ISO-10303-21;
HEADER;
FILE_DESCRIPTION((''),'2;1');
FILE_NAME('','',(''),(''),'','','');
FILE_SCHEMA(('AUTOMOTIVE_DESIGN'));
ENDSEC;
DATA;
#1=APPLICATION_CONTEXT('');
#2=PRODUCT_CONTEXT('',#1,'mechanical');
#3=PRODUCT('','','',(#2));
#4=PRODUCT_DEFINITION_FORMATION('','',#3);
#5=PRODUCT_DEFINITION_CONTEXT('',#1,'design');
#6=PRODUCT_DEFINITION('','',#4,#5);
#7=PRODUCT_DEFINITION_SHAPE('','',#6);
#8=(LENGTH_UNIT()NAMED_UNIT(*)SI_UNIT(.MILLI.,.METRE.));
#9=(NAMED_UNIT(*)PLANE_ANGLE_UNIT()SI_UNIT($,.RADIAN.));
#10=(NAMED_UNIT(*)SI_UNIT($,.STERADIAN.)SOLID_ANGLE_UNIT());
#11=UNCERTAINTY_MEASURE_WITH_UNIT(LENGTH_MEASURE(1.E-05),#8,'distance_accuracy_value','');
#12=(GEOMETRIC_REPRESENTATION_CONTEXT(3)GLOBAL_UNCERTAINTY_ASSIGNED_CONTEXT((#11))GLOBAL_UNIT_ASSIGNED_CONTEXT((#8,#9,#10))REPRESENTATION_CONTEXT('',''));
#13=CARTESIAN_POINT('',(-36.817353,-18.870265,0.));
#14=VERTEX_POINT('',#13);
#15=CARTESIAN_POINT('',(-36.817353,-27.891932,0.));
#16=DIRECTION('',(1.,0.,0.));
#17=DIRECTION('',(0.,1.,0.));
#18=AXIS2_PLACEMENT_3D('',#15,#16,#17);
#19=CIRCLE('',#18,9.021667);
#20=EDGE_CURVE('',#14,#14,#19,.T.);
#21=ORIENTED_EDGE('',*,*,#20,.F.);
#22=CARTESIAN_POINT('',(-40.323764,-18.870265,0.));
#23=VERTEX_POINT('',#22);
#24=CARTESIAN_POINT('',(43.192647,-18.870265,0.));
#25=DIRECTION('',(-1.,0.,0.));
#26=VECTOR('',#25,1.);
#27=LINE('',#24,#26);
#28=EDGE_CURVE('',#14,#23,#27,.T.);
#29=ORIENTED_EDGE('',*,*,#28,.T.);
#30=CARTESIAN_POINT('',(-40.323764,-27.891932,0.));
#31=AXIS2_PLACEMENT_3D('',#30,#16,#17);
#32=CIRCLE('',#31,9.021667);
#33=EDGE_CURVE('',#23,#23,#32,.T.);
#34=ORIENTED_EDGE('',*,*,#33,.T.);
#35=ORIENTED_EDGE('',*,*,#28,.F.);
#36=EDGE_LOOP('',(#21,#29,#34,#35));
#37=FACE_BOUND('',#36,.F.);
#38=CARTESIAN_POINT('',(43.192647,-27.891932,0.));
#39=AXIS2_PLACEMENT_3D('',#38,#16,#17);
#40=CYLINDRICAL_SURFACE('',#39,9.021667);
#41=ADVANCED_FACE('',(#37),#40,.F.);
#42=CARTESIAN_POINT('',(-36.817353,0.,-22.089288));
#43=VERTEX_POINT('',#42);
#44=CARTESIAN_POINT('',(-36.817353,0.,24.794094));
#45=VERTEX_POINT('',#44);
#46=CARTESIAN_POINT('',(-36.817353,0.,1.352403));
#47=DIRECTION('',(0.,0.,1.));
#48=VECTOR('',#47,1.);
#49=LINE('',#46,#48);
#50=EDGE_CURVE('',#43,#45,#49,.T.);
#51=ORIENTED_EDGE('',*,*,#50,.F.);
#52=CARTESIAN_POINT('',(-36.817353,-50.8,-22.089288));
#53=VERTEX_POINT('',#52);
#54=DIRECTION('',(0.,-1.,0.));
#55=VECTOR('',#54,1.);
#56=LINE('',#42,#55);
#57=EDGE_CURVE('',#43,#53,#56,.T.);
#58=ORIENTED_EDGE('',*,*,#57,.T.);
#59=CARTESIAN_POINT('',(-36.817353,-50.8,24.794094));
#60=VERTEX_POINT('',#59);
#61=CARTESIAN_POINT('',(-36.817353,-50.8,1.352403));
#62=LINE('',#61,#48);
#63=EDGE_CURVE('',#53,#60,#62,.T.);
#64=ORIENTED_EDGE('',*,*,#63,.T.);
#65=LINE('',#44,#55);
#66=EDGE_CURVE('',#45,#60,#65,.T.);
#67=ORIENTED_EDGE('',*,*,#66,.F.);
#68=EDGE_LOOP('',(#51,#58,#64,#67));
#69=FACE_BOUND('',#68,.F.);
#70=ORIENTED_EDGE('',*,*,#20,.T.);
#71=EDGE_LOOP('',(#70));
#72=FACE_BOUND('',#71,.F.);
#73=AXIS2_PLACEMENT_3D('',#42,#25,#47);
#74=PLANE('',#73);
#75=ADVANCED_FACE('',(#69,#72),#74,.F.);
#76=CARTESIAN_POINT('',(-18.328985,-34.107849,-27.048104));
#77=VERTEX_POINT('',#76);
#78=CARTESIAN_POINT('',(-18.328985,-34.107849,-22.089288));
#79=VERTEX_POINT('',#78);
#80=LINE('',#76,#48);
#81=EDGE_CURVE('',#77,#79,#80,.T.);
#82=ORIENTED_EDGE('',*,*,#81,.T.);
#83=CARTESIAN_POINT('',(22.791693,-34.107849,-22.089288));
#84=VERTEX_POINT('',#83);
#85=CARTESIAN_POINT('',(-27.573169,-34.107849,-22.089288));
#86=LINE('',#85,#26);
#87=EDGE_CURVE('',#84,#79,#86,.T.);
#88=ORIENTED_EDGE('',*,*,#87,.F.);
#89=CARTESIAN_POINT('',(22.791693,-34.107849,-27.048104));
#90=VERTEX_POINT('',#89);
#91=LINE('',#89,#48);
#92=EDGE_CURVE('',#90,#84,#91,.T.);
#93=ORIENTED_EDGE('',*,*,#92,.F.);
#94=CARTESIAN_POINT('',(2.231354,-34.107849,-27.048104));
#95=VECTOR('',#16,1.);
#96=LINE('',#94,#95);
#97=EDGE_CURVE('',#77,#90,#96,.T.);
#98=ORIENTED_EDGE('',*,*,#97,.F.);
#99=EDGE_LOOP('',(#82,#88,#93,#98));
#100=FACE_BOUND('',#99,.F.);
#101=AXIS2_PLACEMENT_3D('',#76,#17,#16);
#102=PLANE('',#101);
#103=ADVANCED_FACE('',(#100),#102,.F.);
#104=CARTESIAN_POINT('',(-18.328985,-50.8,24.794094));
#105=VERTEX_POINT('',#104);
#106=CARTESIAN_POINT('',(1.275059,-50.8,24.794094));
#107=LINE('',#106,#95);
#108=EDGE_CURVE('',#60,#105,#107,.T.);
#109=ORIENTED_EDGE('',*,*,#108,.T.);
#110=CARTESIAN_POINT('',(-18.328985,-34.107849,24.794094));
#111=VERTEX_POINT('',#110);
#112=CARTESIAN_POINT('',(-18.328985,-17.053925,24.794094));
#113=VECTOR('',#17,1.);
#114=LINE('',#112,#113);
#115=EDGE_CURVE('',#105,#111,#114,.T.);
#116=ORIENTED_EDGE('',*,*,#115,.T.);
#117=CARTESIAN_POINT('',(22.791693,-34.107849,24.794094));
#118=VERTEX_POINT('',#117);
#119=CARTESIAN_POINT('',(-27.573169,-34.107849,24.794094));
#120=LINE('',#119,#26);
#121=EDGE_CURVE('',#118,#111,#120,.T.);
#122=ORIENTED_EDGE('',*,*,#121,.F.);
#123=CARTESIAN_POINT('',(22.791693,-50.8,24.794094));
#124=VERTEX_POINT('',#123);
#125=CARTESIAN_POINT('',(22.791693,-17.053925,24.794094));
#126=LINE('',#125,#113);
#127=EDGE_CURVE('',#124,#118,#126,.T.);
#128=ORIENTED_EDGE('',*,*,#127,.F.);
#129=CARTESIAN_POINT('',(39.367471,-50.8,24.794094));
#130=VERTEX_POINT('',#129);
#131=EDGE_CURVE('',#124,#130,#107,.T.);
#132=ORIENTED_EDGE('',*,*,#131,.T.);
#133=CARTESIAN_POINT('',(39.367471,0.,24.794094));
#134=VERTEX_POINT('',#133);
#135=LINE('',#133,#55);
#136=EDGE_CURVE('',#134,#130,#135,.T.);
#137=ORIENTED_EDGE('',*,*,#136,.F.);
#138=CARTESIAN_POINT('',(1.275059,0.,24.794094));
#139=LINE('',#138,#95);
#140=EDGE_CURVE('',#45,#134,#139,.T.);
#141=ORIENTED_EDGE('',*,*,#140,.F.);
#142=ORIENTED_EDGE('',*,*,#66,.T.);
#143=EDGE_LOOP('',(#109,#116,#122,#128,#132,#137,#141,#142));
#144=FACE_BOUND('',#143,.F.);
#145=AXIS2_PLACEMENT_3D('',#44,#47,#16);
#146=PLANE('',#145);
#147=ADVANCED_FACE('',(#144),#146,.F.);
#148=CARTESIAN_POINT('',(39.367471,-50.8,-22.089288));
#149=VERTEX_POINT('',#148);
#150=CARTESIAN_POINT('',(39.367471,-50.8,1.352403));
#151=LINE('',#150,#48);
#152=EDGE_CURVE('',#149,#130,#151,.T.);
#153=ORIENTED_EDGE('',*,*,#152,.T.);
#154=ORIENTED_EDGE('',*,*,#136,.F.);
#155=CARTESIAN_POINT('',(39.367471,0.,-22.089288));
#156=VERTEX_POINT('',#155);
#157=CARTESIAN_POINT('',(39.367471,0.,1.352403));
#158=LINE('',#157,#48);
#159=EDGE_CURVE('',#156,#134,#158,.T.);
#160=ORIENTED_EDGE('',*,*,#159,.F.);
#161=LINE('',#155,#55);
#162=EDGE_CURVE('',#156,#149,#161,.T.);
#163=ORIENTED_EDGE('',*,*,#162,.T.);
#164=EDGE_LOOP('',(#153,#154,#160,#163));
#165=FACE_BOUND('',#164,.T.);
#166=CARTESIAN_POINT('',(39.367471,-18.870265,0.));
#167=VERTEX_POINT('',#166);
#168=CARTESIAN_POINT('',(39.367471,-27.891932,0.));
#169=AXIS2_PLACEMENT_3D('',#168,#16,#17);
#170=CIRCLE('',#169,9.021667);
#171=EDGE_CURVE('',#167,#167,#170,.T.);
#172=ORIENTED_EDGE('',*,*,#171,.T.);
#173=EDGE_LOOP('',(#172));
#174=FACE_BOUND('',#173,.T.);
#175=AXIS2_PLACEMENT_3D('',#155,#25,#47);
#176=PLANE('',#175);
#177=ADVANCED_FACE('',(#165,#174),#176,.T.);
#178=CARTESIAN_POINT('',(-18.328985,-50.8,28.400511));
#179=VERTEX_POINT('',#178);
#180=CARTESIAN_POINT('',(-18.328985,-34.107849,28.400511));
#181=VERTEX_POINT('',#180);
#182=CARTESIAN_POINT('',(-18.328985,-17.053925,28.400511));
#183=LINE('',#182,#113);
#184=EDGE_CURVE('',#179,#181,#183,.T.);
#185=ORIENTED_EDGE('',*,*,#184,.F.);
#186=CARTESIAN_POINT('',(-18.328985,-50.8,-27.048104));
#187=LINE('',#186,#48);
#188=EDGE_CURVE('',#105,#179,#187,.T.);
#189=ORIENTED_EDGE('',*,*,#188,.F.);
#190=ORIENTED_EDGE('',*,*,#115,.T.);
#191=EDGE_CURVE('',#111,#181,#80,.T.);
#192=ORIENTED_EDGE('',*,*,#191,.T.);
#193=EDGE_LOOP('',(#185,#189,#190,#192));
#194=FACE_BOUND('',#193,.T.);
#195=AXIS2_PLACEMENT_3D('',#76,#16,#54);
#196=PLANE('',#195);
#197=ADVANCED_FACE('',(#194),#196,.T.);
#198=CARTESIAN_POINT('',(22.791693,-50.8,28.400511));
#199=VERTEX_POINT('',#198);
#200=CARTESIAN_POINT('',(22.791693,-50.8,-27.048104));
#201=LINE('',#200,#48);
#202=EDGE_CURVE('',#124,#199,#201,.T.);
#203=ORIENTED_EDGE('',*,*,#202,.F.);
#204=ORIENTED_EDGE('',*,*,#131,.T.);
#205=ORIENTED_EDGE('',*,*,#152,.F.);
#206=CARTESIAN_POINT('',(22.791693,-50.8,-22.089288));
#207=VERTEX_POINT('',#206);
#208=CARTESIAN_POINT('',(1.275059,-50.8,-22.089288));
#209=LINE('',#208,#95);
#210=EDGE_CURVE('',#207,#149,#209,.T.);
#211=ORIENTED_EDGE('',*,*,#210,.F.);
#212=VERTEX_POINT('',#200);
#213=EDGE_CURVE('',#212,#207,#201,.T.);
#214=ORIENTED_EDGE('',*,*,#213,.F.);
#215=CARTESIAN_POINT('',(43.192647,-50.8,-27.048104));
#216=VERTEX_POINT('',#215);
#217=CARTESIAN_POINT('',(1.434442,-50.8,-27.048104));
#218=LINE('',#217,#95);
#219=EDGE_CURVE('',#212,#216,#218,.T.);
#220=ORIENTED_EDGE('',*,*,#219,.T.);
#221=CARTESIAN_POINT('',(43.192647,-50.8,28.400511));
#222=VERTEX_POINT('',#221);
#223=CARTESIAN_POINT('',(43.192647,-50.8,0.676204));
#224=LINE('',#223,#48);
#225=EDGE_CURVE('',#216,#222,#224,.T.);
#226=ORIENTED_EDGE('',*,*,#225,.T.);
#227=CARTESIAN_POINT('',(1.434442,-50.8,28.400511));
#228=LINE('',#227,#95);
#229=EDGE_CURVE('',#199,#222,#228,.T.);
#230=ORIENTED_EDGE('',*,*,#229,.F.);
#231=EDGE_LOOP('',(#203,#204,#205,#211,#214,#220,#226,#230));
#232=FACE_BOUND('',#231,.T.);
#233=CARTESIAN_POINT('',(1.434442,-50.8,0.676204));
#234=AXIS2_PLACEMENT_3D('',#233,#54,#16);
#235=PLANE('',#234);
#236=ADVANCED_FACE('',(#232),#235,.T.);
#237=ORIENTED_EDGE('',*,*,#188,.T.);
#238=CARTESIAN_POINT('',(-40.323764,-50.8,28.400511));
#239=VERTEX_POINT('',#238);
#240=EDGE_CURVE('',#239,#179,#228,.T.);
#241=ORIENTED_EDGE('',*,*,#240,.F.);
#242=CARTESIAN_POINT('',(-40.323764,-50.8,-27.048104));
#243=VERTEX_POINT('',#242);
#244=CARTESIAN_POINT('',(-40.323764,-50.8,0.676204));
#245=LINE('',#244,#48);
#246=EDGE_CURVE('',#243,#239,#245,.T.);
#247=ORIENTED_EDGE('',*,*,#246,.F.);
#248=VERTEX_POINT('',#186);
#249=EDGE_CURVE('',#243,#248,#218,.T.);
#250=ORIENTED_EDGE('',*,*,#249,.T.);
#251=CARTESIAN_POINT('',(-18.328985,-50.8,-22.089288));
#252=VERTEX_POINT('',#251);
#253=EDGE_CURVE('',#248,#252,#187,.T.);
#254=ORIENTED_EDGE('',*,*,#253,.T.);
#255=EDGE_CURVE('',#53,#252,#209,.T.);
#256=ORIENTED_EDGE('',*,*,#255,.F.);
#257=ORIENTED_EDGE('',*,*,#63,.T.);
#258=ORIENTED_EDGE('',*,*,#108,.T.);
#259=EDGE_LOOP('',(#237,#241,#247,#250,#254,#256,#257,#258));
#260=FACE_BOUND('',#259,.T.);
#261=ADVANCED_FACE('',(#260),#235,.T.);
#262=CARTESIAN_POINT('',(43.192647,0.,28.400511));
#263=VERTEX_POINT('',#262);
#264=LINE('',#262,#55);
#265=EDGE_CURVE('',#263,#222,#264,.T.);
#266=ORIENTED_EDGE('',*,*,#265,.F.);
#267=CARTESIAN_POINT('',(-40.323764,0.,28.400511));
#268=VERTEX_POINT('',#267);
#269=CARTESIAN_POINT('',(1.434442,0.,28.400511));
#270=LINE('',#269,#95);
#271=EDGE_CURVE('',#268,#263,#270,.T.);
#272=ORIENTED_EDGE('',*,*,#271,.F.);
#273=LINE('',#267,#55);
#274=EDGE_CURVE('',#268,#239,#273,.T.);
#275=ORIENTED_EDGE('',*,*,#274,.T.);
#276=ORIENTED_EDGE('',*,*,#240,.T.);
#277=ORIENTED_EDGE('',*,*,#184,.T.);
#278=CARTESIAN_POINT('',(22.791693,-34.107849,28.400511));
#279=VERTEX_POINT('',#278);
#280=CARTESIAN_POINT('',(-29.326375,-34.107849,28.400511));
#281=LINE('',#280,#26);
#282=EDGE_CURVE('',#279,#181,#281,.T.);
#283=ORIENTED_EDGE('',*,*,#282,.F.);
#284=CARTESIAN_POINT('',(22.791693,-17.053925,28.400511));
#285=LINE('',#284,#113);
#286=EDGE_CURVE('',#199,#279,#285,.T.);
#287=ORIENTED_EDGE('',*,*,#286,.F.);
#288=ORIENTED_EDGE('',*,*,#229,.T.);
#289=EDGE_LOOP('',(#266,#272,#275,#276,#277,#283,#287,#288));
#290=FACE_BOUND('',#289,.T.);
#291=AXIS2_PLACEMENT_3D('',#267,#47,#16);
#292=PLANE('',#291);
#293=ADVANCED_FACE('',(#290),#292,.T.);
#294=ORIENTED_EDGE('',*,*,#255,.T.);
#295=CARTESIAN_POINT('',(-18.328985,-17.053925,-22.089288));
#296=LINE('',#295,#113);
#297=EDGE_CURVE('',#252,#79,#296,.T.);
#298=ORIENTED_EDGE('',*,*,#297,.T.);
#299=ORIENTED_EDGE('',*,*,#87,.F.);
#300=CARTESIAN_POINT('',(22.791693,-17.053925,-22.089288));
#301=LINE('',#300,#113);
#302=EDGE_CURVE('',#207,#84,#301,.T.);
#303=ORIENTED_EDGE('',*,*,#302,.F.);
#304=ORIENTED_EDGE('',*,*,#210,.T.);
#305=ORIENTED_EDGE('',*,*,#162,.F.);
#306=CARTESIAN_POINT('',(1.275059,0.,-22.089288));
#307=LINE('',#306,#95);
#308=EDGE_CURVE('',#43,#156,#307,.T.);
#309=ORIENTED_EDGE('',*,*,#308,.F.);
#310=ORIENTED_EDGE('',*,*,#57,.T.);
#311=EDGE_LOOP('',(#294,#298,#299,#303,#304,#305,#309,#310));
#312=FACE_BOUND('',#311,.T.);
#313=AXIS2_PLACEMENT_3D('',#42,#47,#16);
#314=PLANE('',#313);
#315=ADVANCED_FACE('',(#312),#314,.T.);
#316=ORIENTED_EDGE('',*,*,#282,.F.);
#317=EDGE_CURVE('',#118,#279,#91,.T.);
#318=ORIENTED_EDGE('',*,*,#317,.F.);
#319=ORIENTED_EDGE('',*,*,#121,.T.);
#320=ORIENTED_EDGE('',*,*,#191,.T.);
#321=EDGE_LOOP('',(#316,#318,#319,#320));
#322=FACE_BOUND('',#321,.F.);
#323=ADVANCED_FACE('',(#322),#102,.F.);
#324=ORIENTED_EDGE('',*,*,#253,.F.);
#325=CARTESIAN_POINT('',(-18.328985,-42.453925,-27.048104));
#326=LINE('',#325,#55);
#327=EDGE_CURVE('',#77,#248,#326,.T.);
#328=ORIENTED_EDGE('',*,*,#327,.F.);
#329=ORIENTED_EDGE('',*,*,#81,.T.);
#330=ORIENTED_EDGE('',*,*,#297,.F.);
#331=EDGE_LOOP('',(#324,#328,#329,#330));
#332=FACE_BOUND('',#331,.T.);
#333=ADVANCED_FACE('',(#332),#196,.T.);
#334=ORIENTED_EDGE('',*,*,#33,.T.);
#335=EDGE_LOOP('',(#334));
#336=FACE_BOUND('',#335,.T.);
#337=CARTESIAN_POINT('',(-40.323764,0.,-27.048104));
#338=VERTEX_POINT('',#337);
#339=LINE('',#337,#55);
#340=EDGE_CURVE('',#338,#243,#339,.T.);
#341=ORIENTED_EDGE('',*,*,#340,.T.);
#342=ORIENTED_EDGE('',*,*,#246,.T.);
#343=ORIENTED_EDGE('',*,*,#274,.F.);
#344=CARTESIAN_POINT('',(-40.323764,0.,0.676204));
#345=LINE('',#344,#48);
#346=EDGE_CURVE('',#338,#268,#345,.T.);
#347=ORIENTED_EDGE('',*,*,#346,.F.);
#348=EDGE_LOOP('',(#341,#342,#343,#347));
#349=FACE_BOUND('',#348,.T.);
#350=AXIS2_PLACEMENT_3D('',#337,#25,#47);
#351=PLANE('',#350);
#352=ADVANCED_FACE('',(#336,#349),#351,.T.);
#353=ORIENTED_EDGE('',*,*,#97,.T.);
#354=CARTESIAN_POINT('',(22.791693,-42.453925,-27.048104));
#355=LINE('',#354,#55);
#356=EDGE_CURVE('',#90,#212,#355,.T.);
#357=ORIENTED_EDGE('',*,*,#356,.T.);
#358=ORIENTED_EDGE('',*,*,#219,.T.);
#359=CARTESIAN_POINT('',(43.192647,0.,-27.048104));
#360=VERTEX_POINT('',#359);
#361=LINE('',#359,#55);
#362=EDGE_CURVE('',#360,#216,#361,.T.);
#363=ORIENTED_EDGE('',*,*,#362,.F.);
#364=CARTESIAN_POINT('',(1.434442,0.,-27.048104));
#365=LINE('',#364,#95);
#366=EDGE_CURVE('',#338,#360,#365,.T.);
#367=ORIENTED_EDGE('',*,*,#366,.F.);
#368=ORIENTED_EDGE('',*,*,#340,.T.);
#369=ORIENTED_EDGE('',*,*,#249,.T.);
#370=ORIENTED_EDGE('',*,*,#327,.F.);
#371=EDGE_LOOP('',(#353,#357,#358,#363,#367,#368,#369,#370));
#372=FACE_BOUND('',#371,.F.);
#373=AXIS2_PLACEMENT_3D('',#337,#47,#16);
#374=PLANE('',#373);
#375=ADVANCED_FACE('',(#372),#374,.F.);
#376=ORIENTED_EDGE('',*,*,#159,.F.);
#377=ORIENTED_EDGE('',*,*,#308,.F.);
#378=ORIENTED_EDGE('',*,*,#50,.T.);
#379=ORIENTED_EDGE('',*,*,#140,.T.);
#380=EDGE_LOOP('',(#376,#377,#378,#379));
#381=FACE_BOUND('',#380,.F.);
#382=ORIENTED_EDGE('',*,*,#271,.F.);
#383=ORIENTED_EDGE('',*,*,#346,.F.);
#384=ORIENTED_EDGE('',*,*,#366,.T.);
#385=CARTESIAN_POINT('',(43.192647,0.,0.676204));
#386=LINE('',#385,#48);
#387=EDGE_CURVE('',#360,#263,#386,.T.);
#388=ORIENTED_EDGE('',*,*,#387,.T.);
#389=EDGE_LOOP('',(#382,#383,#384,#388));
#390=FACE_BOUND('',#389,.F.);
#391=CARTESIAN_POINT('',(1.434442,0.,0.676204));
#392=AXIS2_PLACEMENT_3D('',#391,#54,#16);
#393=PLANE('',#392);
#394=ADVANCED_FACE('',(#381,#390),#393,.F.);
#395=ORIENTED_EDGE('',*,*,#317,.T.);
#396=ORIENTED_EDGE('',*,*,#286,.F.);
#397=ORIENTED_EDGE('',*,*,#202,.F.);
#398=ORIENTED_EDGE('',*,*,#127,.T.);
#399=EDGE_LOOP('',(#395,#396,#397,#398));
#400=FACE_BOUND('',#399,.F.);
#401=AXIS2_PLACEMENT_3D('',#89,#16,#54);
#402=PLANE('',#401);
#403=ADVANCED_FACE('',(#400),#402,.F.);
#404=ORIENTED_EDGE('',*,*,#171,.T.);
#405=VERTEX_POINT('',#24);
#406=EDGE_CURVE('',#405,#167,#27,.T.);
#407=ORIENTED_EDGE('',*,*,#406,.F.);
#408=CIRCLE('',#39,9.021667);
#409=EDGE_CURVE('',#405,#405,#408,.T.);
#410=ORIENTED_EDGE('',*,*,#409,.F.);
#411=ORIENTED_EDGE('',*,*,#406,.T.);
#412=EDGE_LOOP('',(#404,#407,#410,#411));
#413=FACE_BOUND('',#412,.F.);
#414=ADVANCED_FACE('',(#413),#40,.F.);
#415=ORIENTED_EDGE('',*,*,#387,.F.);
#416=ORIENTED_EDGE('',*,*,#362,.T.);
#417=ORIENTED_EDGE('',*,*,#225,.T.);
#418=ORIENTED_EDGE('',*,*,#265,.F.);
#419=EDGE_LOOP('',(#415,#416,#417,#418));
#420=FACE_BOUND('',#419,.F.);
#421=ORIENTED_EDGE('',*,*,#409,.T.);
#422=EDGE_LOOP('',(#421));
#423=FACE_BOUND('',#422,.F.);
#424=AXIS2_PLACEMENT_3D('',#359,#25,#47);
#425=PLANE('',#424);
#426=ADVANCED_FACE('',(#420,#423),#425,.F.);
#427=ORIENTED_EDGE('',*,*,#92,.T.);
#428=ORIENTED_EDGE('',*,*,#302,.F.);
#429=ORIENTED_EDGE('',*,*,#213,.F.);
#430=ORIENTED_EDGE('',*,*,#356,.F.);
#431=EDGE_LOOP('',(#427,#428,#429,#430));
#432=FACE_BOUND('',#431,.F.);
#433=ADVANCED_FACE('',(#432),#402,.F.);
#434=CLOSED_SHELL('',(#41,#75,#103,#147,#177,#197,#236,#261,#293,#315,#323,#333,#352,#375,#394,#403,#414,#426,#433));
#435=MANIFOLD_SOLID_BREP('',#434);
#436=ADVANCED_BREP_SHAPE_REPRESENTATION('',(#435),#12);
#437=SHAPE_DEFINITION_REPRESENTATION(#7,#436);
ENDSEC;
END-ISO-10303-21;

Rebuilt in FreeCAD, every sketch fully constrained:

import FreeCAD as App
import Part
import Sketcher
from FreeCAD import Vector
Q = App.Units.Quantity


def add_polygon(sketch, points):
    """Adds a closed chain of lines whose ends are joined by coincident constraints."""
    first, n = sketch.GeometryCount, len(points)
    for a, b in zip(points, points[1:] + points[:1]):
        sketch.addGeometry(Part.LineSegment(App.Vector(*a, 0), App.Vector(*b, 0)), False)
    for i in range(n):
        sketch.addConstraint(Sketcher.Constraint("Coincident", first + i, 2, first + (i + 1) % n, 1))

doc = App.newDocument("Part")
params = doc.addObject("Spreadsheet::Sheet", "Params")
for row, (alias, value) in enumerate([
    ("pad1_length", "2 in"),
    ("pocket1_length", "4.46 in"),
    ("pocket2_length", "44 in"),
], start=1):
    params.set(f"A{row}", alias)
    params.set(f"B{row}", "=" + value)
    params.setAlias(f"B{row}", alias)

body = doc.addObject("PartDesign::Body", "Body")

# Sketch on XZ plane
sketch1 = body.newObject("Sketcher::SketchObject", "Sketch")
sketch1.AttachmentSupport = (doc.getObject("XZ_Plane"), [""])
sketch1.MapMode = "FlatFace"
add_polygon(sketch1, [(-40, 28), (-40, -27), (43, -27), (43, 28)])  # lines 0-3
add_polygon(sketch1, [(39, -22), (-37, -22), (-37, 25), (39, 25)])  # lines 4-7
sketch1.addConstraint(Sketcher.Constraint("Vertical", 0))
sketch1.addConstraint(Sketcher.Constraint("Horizontal", 1))
sketch1.addConstraint(Sketcher.Constraint("Vertical", 2))
sketch1.addConstraint(Sketcher.Constraint("Horizontal", 3))
sketch1.addConstraint(Sketcher.Constraint("Horizontal", 4))
sketch1.addConstraint(Sketcher.Constraint("Vertical", 5))
sketch1.addConstraint(Sketcher.Constraint("Horizontal", 6))
sketch1.addConstraint(Sketcher.Constraint("Vertical", 7))
sketch1.addConstraint(Sketcher.Constraint("DistanceX", 4, 2, 1, 2, Q("3.15 in")))
sketch1.addConstraint(Sketcher.Constraint("DistanceX", 1, 1, 1, 2, Q("83.516411 mm")))
sketch1.addConstraint(Sketcher.Constraint("DistanceY", 5, 1, 5, 2, Q("46.883382 mm")))
sketch1.addConstraint(Sketcher.Constraint("DistanceY", 4, 2, 3, 2, Q("50.489798 mm")))
sketch1.addConstraint(Sketcher.Constraint("DistanceX", 4, 2, 4, 1, Q("76.184824 mm")))
sketch1.addConstraint(Sketcher.Constraint("DistanceY", 0, 2, 0, 1, Q("55.448614 mm")))
sketch1.addConstraint(Sketcher.Constraint("DistanceY", -1, 1, 2, 2, Q("28.400511 mm")))
sketch1.addConstraint(Sketcher.Constraint("DistanceX", -1, 1, 6, 2, Q("39.367471 mm")))
pad1 = body.newObject("PartDesign::Pad", "Pad")
pad1.Profile = sketch1
pad1.setExpression("Length", "Params.pad1_length")

# Sketch on YZ plane
sketch2 = body.newObject("Sketcher::SketchObject", "Sketch001")
sketch2.AttachmentSupport = (doc.getObject("YZ_Plane"), [""])
sketch2.MapMode = "FlatFace"
sketch2.AttachmentOffset = App.Placement(Vector(0, 0, 43.192647), App.Rotation())
sketch2.addGeometry(Part.Circle(Vector(-28, 0, 0), Vector(0, 0, 1), 9), False)
sketch2.addConstraint(Sketcher.Constraint("PointOnObject", 0, 3, -1))
sketch2.addConstraint(Sketcher.Constraint("Diameter", 0, Q("18.043335 mm")))
sketch2.addConstraint(Sketcher.Constraint("DistanceX", 0, 3, -1, 1, Q("27.891932 mm")))
pocket1 = body.newObject("PartDesign::Pocket", "Pocket")
pocket1.Profile = sketch2
pocket1.setExpression("Length", "Params.pocket1_length")

# Sketch on XY plane
sketch3 = body.newObject("Sketcher::SketchObject", "Sketch002")
sketch3.AttachmentSupport = (doc.getObject("XY_Plane"), [""])
sketch3.MapMode = "FlatFace"
sketch3.AttachmentOffset = App.Placement(Vector(0, 0, -27.048104), App.Rotation())
add_polygon(sketch3, [(-18, -51), (-18, -34), (23, -34), (23, -51)])  # lines 0-3
sketch3.addConstraint(Sketcher.Constraint("Vertical", 0))
sketch3.addConstraint(Sketcher.Constraint("Horizontal", 1))
sketch3.addConstraint(Sketcher.Constraint("Vertical", 2))
sketch3.addConstraint(Sketcher.Constraint("Horizontal", 3))
sketch3.addConstraint(Sketcher.Constraint("DistanceY", 2, 2, -1, 1, Q("2 in")))
sketch3.addConstraint(Sketcher.Constraint("DistanceX", 1, 1, 1, 2, Q("41.120678 mm")))
sketch3.addConstraint(Sketcher.Constraint("DistanceY", 0, 1, 0, 2, Q("16.692151 mm")))
sketch3.addConstraint(Sketcher.Constraint("DistanceX", 0, 2, -1, 1, Q("18.328985 mm")))
pocket2 = body.newObject("PartDesign::Pocket", "Pocket001")
pocket2.Profile = sketch3
pocket2.setExpression("Length", "Params.pocket2_length")
pocket2.Reversed = True

doc.recompute()
